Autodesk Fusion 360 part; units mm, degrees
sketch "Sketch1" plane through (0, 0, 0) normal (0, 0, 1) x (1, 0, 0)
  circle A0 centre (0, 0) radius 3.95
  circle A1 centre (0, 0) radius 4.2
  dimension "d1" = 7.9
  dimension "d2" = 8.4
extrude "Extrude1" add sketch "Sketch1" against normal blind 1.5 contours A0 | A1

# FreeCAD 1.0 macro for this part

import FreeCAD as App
import Part
import Sketcher

V = App.Vector
Q = App.Units.Quantity

doc = App.newDocument("Part")
body = doc.addObject("PartDesign::Body", "Body")

# Sketch on XY plane
sketch1 = body.newObject("Sketcher::SketchObject", "Sketch")
sketch1.AttachmentSupport = (doc.getObject("XY_Plane"), [""])
sketch1.MapMode = "FlatFace"
sketch1.addGeometry(Part.Circle(V(0, 0, 0), V(0, 0, 1), 4.2), False)
sketch1.addConstraint([
    Sketcher.Constraint("Coincident", 0, 3, -1, 1),
    Sketcher.Constraint("Diameter", 0, Q("8.4 mm")),
])
pad1 = body.newObject("PartDesign::Pad", "Pad")
pad1.Profile = sketch1
pad1.Length = 1.5
pad1.Reversed = True

doc.recompute()
